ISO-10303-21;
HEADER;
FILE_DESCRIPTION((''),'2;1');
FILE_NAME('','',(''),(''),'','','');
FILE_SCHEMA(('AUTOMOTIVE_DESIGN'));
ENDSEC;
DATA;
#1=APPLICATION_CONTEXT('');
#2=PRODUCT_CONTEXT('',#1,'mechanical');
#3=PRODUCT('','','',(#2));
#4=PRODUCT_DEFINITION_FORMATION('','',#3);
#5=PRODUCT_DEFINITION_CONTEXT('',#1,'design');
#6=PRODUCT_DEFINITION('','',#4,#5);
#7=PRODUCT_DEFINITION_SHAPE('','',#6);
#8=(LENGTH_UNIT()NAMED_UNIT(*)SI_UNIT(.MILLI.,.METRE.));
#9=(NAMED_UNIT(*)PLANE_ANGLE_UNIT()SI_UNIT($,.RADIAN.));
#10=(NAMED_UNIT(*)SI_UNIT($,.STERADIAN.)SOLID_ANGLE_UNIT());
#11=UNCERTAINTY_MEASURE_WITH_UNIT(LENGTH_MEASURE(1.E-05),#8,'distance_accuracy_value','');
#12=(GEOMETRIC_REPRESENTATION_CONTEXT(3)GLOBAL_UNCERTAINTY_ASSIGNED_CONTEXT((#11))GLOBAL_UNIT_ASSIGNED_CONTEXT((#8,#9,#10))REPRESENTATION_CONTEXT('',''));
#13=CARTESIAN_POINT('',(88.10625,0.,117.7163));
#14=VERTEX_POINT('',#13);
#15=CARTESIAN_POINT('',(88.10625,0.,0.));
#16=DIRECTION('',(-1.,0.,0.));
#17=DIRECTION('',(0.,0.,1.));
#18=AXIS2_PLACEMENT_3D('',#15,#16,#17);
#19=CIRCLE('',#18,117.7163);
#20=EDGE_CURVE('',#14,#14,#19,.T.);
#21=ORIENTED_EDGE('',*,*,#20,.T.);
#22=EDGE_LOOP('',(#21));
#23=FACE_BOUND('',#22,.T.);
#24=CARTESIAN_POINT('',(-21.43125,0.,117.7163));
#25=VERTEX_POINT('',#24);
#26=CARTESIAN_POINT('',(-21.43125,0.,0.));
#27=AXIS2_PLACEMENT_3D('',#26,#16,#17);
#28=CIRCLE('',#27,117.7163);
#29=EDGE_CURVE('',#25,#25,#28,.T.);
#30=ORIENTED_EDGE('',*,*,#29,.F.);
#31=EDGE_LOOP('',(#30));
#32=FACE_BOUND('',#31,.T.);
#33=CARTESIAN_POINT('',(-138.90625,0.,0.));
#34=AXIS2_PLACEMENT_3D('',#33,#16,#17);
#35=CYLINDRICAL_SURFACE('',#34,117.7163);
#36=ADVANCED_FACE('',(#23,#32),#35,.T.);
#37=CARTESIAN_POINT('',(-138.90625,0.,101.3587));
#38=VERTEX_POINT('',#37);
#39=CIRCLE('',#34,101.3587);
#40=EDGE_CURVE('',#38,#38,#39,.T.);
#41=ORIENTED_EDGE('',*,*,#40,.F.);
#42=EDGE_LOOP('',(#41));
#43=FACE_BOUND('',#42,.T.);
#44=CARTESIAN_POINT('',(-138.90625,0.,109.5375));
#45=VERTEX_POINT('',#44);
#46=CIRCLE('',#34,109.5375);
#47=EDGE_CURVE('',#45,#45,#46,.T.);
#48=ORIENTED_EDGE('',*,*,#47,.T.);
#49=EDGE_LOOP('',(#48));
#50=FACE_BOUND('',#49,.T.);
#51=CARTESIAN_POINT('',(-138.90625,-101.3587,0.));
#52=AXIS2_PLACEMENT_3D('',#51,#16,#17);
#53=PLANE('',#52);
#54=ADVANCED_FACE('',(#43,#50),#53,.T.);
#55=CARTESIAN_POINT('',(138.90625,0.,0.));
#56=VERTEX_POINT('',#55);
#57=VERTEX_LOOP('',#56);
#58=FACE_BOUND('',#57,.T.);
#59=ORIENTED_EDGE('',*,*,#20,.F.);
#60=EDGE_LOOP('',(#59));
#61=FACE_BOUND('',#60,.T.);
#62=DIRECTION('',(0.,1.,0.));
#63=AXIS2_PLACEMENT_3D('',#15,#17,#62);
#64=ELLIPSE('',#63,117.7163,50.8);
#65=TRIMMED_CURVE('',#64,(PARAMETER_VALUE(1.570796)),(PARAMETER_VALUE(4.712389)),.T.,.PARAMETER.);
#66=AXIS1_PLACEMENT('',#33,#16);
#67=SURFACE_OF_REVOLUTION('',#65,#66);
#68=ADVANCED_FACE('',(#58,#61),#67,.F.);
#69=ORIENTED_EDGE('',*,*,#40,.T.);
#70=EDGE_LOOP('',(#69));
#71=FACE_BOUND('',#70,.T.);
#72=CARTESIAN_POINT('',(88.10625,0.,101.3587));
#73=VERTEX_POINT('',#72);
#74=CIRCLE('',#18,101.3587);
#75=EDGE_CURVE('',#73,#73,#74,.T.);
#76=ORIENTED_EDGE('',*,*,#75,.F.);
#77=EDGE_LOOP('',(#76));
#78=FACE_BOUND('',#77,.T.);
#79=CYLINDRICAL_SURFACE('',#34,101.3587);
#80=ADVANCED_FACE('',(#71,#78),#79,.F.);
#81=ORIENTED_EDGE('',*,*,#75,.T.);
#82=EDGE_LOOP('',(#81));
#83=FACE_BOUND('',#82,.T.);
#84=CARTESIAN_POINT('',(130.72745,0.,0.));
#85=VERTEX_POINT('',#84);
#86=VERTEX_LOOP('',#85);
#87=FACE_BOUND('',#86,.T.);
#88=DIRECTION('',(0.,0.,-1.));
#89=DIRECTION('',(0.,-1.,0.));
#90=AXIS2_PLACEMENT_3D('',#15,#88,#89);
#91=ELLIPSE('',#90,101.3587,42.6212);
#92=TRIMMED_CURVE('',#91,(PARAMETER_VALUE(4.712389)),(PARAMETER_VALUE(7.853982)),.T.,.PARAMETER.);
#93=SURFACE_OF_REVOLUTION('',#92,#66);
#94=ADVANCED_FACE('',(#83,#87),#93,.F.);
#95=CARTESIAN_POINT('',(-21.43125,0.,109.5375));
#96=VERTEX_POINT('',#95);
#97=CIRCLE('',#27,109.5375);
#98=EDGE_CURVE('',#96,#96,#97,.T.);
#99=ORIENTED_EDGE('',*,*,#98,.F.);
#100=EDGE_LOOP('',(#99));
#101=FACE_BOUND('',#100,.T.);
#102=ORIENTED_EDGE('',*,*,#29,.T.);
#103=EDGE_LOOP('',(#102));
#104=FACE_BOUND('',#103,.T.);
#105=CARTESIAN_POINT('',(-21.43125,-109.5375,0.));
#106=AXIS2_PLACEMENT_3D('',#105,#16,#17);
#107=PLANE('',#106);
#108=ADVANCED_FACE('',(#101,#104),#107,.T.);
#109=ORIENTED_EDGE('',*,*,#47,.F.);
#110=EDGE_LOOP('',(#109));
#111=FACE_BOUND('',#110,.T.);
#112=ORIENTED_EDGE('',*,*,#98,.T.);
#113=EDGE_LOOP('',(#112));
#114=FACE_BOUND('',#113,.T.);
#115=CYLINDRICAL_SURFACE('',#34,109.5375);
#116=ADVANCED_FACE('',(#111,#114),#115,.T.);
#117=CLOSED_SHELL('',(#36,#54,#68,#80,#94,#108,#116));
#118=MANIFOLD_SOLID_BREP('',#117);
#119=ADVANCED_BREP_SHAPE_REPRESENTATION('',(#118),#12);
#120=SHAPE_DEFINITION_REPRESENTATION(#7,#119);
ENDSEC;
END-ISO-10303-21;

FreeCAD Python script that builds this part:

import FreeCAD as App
import Part
import Sketcher
Q = App.Units.Quantity

doc = App.newDocument("Part")
params = doc.addObject("Spreadsheet::Sheet", "Params")
for row, (alias, value) in enumerate([
    ("sketch1_width", "4.625 in"),
    ("sketch1_width2", "4.3125 in"),
    ("revolution_angle", "360 deg"),
], start=1):
    params.set(f"A{row}", alias)
    params.set(f"B{row}", "=" + value)
    params.setAlias(f"B{row}", alias)

body = doc.addObject("PartDesign::Body", "Body")

# Sketch on XY plane
sketch1 = body.newObject("Sketcher::SketchObject", "Sketch")
sketch1.AttachmentSupport = (doc.getObject("XY_Plane"), [""])
sketch1.MapMode = "FlatFace"
sketch1.addGeometry(Part.LineSegment(App.Vector(-138.90625, -109.5375, 0), App.Vector(-21.43125, -109.5375, 0)), False)
sketch1.addGeometry(Part.LineSegment(App.Vector(-21.43125, -109.5375, 0), App.Vector(-21.43125, -117.7163, 0)), False)
sketch1.addGeometry(Part.LineSegment(App.Vector(-21.43125, -117.7163, 0), App.Vector(88.10625, -117.7163, 0)), False)
sketch1.addGeometry(Part.BSplineCurve([App.Vector(88.10625, -117.7163, 0), App.Vector(138.90625, -117.7163, 0), App.Vector(138.90625, 0, 0)], [3, 3], [3.141592654, 4.71238898], False, 2, [1, 0.707106781, 1], False), False)
sketch1.addGeometry(Part.LineSegment(App.Vector(138.90625, 0, 0), App.Vector(130.72745, 0, 0)), False)
sketch1.addGeometry(Part.BSplineCurve([App.Vector(88.10625, -101.3587, 0), App.Vector(130.72745, -101.3587, 0), App.Vector(130.72745, 0, 0)], [3, 3], [0, 1.570796327], False, 2, [1, 0.707106781, 1], False), False)
sketch1.addGeometry(Part.LineSegment(App.Vector(88.10625, -101.3587, 0), App.Vector(-138.90625, -101.3587, 0)), False)
sketch1.addGeometry(Part.LineSegment(App.Vector(-138.90625, -101.3587, 0), App.Vector(-138.90625, -109.5375, 0)), False)
sketch1.addConstraint(Sketcher.Constraint("Block", 3))
sketch1.addConstraint(Sketcher.Constraint("Block", 5))
sketch1.addConstraint(Sketcher.Constraint("Coincident", 0, 2, 1, 1))
sketch1.addConstraint(Sketcher.Constraint("Coincident", 1, 2, 2, 1))
sketch1.addConstraint(Sketcher.Constraint("Coincident", 2, 2, 3, 1))
sketch1.addConstraint(Sketcher.Constraint("Coincident", 3, 2, 4, 1))
sketch1.addConstraint(Sketcher.Constraint("Coincident", 4, 2, 5, 2))
sketch1.addConstraint(Sketcher.Constraint("Coincident", 5, 1, 6, 1))
sketch1.addConstraint(Sketcher.Constraint("Coincident", 6, 2, 7, 1))
sketch1.addConstraint(Sketcher.Constraint("Coincident", 7, 2, 0, 1))
sketch1.addConstraint(Sketcher.Constraint("Horizontal", 0))
sketch1.addConstraint(Sketcher.Constraint("Vertical", 1))
sketch1.addConstraint(Sketcher.Constraint("Horizontal", 2))
sketch1.addConstraint(Sketcher.Constraint("Horizontal", 6))
sketch1.addConstraint(Sketcher.Constraint("Vertical", 7))
sketch1.addConstraint(Sketcher.Constraint("Equal", 4, 1))
sketch1.addConstraint(Sketcher.Constraint("DistanceX", 0, 1, 0, 2, Q("4.625 in")))
sketch1.addConstraint(Sketcher.Constraint("DistanceX", 2, 1, 2, 2, Q("4.3125 in")))
sketch1.setExpression("Constraints[16]", "Params.sketch1_width")
sketch1.setExpression("Constraints[17]", "Params.sketch1_width2")
revolution = body.newObject("PartDesign::Revolution", "Revolution")
revolution.Profile = sketch1
revolution.ReferenceAxis = (sketch1, ["H_Axis"])
revolution.setExpression("Angle", "Params.revolution_angle")

doc.recompute()
